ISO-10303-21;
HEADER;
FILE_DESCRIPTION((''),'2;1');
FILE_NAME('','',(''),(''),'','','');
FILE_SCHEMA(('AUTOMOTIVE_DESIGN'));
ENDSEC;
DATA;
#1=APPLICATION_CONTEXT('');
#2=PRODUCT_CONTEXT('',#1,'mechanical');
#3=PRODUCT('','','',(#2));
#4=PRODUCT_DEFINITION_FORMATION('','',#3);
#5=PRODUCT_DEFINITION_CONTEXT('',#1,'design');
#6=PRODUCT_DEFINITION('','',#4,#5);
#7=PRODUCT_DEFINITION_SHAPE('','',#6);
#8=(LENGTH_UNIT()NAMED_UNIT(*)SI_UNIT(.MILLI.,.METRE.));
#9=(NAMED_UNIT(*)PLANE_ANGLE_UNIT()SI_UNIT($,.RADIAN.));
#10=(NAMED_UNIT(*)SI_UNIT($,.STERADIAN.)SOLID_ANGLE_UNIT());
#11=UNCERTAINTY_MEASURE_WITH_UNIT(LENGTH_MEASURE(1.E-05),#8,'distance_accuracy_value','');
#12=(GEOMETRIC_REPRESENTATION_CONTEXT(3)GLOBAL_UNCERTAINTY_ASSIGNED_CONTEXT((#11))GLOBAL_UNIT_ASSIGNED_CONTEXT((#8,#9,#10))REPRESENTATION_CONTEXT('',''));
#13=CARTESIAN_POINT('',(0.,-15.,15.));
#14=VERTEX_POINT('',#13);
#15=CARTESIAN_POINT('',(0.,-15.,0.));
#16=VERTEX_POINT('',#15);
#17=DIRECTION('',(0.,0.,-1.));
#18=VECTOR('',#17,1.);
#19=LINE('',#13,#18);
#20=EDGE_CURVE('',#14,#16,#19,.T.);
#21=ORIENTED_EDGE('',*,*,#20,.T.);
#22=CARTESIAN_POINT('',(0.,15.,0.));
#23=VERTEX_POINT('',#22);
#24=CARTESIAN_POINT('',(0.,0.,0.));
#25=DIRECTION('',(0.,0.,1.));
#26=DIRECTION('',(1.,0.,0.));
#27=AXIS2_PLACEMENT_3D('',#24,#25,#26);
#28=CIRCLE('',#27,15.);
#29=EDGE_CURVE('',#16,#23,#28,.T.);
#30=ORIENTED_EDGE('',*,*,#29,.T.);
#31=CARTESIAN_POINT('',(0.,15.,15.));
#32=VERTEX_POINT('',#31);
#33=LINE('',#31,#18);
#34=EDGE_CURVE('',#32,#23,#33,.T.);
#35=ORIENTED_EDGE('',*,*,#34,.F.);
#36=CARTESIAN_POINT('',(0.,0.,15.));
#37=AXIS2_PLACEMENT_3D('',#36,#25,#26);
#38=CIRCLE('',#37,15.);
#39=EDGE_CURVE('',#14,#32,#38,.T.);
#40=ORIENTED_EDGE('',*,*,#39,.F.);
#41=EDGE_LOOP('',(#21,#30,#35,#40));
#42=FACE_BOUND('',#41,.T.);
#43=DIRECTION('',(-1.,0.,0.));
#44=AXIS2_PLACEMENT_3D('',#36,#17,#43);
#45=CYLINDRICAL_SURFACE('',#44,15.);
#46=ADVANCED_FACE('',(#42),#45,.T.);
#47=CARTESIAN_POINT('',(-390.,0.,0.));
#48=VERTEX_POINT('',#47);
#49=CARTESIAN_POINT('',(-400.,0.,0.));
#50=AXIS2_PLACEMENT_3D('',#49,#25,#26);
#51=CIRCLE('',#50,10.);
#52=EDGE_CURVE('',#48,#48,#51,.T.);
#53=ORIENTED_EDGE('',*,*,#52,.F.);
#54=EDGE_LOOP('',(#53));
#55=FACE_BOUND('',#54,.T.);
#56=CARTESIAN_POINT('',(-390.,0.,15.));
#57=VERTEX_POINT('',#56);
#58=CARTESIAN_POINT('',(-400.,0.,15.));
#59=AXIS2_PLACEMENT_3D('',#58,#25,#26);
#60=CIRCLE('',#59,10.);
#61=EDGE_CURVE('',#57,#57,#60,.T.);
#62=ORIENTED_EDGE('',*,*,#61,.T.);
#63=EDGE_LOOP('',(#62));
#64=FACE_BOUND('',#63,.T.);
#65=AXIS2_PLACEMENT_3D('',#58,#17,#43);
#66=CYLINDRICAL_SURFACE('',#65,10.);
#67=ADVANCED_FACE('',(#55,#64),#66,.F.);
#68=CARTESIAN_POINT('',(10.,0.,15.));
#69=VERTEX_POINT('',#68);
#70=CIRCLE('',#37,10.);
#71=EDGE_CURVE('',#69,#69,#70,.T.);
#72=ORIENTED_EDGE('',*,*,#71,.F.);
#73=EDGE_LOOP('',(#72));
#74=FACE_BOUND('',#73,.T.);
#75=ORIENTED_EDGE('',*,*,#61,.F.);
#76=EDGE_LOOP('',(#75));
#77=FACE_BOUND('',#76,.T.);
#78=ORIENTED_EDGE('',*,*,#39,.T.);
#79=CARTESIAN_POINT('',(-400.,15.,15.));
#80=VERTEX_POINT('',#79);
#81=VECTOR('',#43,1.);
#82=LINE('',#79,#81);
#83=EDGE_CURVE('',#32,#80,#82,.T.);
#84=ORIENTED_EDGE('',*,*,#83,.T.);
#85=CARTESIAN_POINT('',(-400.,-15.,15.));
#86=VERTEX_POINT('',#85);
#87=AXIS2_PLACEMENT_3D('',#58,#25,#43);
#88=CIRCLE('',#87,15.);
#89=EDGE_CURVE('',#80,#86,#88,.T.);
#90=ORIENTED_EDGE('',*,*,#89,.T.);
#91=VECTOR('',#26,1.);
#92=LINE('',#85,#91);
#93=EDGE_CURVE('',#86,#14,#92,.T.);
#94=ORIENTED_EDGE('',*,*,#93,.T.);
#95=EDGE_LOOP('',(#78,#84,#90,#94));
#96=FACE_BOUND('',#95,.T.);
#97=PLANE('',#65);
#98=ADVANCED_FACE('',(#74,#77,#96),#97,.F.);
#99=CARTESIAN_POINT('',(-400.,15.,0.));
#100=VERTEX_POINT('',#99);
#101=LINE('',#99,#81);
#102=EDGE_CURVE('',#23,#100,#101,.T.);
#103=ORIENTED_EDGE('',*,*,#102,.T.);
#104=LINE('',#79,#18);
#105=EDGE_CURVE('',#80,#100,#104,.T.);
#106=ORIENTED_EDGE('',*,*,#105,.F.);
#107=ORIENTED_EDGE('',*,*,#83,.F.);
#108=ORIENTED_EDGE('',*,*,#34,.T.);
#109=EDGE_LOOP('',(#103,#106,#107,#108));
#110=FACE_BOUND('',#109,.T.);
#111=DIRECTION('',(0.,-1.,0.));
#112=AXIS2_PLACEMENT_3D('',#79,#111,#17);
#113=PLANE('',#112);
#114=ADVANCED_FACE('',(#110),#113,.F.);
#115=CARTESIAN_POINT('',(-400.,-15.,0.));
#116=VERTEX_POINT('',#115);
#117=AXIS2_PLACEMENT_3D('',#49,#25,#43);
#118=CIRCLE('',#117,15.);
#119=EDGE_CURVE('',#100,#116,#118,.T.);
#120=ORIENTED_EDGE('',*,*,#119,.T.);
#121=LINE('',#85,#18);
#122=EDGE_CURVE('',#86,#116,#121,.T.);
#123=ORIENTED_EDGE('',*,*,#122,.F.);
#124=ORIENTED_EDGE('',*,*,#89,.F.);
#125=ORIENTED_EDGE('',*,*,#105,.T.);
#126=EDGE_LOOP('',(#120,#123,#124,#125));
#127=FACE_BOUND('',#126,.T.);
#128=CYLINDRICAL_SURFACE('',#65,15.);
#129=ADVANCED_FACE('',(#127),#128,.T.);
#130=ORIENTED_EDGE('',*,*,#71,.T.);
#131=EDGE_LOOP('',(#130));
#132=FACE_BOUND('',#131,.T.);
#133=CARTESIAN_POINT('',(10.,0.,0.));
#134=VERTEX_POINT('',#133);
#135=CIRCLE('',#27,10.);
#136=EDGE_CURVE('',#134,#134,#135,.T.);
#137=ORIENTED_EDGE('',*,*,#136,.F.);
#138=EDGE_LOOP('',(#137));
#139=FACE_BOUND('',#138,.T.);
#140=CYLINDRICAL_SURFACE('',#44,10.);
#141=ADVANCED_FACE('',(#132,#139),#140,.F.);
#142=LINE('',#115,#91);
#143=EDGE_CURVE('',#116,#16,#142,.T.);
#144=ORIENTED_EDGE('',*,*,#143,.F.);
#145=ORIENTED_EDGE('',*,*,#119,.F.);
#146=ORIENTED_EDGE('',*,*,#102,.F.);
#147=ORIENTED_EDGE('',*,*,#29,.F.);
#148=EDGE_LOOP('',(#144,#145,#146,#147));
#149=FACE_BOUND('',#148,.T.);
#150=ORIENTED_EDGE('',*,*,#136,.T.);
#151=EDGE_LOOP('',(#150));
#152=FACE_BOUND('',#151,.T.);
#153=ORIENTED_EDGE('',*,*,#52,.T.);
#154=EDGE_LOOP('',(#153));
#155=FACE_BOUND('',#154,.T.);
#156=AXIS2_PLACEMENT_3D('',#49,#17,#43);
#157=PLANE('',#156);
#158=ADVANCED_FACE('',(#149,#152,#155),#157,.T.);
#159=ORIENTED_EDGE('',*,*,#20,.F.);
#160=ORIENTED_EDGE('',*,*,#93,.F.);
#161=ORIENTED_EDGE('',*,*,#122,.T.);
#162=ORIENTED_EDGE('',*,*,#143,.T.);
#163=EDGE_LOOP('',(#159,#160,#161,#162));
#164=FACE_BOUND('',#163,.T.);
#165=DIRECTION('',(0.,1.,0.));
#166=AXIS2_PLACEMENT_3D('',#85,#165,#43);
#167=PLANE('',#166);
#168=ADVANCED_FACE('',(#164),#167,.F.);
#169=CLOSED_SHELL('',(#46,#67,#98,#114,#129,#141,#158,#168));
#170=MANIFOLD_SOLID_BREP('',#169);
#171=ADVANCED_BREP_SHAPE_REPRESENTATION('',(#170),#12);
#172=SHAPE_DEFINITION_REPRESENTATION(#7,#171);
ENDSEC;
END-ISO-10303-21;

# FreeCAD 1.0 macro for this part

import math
import FreeCAD as App
import Part
import Sketcher

V = App.Vector

doc = App.newDocument("Part")
body = doc.addObject("PartDesign::Body", "Body")

# Sketch on XY plane
sketch1 = body.newObject("Sketcher::SketchObject", "Sketch")
sketch1.AttachmentSupport = (doc.getObject("XY_Plane"), [""])
sketch1.MapMode = "FlatFace"
sketch1.addGeometry([
    Part.LineSegment(V(0, 15, 0), V(-400, 15, 0)),  # 0
    Part.ArcOfCircle(Part.Circle(V(-400, 0, 0), V(0, 0, 1), 15), math.radians(90), math.radians(270)),  # 1
    Part.LineSegment(V(-400, -15, 0), V(0, -15, 0)),  # 2
    Part.ArcOfCircle(Part.Circle(V(0, 0, 0), V(0, 0, 1), 15), math.radians(-90), math.radians(90)),  # 3
    Part.Circle(V(0, 0, 0), V(0, 0, 1), 10),  # 4
    Part.Circle(V(-400, 0, 0), V(0, 0, 1), 10),  # 5
], False)
sketch1.addConstraint([
    Sketcher.Constraint("Tangent", 0, 2, 1, 1),
    Sketcher.Constraint("Tangent", 1, 2, 2, 1),
    Sketcher.Constraint("Tangent", 2, 2, 3, 1),
    Sketcher.Constraint("Tangent", 3, 2, 0, 1),
    Sketcher.Constraint("Horizontal", 0),
    Sketcher.Constraint("Horizontal", 2),
    Sketcher.Constraint("Coincident", 3, 3, -1, 1),
    Sketcher.Constraint("Coincident", 4, 3, -1, 1),
    Sketcher.Constraint("Coincident", 5, 3, 1, 3),
    Sketcher.Constraint("Equal", 4, 5),
    Sketcher.Constraint("Diameter", 4, 20.0),
    Sketcher.Constraint("Radius", 1, 15.0),
    Sketcher.Constraint("DistanceX", 0, 2, 0, 1, 400.0),
])
pad1 = body.newObject("PartDesign::Pad", "Pad")
pad1.Profile = sketch1
pad1.Length = 15

doc.recompute()
